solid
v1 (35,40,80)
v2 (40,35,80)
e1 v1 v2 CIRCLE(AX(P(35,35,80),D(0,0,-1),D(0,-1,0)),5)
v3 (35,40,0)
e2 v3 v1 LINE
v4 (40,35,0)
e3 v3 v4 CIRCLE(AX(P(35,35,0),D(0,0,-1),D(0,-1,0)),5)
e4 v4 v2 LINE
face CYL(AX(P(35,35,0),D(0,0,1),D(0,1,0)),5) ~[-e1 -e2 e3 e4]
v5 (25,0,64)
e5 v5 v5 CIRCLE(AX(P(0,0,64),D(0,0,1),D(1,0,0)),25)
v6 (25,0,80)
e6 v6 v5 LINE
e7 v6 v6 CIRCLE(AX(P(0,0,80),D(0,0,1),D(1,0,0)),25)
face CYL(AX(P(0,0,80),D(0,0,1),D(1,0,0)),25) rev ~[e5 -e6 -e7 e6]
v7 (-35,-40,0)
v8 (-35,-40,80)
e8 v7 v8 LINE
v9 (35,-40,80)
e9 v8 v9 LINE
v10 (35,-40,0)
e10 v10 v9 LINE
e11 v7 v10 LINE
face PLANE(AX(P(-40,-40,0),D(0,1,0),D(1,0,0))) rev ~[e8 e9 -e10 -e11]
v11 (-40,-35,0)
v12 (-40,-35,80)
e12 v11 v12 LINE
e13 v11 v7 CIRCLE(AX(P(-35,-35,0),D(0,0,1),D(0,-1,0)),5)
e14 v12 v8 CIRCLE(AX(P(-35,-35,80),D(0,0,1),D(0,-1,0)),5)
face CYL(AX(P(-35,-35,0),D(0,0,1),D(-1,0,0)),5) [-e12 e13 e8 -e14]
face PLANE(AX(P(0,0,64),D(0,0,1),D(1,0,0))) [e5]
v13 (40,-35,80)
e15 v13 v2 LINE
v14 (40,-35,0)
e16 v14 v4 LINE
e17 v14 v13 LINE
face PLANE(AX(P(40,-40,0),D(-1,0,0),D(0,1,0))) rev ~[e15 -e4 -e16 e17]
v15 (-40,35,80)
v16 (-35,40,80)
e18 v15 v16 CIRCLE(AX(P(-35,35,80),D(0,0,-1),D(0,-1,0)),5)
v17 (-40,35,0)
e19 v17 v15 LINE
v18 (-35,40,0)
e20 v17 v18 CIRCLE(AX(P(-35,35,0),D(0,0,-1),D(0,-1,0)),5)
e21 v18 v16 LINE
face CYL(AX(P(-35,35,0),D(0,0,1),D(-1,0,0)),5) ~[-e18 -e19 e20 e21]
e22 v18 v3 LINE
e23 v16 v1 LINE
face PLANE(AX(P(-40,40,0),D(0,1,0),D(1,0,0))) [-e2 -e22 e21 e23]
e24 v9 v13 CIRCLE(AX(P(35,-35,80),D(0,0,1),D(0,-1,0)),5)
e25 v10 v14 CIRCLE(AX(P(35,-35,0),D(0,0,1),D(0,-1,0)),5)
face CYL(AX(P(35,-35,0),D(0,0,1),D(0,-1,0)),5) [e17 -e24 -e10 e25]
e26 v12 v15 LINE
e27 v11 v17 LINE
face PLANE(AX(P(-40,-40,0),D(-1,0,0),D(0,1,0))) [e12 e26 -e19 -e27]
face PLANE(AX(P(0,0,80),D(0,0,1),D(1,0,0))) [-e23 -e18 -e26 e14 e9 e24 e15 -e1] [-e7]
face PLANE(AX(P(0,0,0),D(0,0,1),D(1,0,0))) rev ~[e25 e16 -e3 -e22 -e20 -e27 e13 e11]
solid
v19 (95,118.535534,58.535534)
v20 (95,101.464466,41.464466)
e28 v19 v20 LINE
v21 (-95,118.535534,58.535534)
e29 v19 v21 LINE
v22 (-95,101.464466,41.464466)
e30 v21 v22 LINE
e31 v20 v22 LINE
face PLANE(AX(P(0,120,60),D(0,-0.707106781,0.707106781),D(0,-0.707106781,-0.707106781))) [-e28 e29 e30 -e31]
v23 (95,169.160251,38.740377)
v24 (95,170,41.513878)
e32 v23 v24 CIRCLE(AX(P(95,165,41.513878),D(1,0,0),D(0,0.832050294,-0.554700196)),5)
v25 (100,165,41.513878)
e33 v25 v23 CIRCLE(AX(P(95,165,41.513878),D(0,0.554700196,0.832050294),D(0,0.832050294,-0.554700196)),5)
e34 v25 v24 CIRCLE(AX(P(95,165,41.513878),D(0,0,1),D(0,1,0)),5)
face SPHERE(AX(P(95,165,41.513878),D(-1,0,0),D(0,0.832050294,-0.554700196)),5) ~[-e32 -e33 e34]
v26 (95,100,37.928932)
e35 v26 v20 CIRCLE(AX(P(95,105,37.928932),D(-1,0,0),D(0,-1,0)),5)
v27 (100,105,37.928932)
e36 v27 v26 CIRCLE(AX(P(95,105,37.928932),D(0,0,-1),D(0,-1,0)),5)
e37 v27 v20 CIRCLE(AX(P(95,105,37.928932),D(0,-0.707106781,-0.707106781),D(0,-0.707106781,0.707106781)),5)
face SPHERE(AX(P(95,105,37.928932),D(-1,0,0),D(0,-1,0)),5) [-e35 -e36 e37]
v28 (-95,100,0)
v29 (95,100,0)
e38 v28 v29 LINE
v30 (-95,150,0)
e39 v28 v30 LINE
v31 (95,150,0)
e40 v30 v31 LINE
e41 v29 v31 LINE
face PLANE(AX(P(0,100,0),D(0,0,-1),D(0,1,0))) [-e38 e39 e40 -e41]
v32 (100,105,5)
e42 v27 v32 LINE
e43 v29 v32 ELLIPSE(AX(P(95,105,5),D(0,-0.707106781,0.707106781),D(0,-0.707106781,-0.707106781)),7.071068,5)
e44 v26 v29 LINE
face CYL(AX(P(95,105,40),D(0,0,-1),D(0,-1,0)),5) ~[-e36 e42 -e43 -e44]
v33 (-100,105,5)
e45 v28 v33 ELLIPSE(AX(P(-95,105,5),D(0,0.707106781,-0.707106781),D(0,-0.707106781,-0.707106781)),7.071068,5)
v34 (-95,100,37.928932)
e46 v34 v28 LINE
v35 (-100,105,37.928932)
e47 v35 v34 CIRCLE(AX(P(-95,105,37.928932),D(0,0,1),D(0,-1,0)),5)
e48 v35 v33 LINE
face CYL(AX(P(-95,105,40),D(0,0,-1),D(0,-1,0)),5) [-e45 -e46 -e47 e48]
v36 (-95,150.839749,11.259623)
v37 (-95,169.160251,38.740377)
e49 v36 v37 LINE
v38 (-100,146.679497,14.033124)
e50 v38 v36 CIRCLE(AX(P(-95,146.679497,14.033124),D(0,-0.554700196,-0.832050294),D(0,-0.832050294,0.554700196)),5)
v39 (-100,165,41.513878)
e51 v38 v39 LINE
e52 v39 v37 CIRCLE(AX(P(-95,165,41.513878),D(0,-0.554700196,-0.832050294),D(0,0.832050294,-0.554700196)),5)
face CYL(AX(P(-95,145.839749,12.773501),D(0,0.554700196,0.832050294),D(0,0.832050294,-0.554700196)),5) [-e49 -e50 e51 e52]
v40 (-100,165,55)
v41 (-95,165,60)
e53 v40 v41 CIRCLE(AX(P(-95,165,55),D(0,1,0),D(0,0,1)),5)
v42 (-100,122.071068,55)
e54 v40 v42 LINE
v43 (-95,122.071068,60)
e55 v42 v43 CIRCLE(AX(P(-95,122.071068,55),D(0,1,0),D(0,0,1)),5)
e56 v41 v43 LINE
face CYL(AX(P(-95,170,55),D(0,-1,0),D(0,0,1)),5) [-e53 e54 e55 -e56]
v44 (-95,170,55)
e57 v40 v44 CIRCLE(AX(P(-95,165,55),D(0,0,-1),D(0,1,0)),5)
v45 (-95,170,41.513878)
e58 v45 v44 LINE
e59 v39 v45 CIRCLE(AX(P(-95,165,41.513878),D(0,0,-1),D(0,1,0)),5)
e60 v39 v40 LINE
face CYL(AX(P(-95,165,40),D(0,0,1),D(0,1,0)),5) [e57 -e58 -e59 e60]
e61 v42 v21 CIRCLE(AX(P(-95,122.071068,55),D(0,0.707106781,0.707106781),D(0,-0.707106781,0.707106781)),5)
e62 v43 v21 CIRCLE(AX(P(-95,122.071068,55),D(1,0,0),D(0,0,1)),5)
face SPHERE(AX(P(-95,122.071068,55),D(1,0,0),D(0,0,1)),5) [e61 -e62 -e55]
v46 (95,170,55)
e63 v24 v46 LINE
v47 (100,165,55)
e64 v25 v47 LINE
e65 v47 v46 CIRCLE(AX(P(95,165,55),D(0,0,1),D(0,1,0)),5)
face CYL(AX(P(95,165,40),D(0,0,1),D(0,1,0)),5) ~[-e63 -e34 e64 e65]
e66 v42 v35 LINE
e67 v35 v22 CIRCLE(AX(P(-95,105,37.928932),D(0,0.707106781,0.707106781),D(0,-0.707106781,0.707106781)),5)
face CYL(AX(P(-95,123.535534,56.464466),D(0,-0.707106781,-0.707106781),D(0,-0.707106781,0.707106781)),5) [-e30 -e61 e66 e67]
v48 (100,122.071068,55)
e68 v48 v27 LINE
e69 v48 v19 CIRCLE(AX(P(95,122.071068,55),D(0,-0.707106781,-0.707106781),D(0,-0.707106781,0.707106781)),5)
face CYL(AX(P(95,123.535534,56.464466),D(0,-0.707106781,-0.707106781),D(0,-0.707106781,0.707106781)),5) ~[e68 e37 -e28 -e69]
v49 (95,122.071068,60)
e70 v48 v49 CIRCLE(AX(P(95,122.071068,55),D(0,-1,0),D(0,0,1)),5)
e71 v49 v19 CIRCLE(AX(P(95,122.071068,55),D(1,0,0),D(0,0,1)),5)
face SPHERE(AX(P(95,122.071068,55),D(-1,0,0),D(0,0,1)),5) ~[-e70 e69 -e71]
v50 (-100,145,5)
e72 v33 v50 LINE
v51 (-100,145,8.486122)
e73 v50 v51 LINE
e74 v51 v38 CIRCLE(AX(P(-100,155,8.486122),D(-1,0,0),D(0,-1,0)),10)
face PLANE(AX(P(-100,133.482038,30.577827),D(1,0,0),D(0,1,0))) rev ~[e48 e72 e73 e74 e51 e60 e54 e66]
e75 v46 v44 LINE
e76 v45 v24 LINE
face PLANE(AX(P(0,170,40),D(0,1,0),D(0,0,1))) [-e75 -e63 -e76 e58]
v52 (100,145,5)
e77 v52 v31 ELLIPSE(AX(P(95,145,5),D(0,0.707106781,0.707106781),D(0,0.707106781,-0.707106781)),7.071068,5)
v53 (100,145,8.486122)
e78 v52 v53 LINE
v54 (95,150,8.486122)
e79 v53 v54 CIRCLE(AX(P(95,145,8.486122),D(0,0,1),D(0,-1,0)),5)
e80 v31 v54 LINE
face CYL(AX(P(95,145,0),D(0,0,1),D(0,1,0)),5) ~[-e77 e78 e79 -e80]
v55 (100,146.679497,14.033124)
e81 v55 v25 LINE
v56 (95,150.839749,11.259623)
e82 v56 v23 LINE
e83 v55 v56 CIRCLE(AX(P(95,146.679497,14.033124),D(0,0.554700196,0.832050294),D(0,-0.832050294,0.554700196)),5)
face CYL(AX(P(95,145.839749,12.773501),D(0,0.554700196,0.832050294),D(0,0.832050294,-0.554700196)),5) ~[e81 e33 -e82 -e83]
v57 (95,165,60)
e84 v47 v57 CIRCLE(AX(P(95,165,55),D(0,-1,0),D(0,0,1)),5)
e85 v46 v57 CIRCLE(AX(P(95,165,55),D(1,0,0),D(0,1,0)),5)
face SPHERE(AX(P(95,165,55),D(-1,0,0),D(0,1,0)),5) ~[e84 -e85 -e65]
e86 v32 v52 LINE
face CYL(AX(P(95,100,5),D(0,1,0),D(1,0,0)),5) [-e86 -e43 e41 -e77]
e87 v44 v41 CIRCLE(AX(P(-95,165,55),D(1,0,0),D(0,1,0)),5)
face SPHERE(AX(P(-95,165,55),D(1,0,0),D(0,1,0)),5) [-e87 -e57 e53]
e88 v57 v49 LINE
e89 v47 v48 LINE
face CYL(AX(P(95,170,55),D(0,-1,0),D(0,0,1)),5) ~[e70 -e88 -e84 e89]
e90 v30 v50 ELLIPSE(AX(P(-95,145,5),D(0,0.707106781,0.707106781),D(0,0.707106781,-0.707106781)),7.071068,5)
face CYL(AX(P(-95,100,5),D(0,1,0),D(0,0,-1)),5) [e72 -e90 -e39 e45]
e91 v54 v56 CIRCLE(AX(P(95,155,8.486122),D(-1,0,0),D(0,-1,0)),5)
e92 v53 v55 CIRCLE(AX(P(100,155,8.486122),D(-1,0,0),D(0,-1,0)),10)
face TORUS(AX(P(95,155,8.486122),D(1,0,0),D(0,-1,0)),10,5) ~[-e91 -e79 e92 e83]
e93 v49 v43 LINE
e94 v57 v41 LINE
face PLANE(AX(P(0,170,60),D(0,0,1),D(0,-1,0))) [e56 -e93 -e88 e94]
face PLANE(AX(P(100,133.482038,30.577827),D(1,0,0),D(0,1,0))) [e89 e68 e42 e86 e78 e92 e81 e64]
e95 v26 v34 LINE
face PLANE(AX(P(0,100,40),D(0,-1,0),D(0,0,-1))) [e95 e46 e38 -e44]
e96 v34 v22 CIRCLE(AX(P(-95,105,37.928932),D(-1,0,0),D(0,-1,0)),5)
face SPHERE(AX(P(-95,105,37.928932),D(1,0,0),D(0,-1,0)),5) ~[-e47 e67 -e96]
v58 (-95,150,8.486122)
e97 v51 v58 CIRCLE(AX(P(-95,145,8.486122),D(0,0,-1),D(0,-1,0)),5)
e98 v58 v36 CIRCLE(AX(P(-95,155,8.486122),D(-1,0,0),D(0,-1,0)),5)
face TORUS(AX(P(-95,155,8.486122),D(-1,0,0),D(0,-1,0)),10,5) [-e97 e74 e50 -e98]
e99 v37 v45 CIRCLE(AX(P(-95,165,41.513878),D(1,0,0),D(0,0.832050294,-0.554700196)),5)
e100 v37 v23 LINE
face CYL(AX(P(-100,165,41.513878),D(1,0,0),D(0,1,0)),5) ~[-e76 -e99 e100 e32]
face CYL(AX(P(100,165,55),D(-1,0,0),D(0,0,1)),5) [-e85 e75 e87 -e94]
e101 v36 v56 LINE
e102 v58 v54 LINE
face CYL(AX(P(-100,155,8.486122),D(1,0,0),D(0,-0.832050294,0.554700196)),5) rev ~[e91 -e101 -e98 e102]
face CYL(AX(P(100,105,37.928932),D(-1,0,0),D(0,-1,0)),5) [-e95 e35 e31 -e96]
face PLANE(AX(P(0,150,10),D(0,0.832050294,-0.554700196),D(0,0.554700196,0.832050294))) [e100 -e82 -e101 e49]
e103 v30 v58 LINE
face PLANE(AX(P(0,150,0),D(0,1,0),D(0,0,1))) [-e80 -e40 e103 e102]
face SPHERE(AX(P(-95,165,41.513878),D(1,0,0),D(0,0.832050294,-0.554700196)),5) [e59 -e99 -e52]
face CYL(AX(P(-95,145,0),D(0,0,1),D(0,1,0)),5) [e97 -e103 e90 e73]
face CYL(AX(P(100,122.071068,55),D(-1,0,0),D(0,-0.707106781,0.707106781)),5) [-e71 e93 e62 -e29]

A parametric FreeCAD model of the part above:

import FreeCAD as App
import Part
import Sketcher
Q = App.Units.Quantity


def edges_at(feature, points):
    """Names of the edges that pass closest to the given points."""
    edges = feature.Shape.Edges
    near = lambda p: min(range(len(edges)), key=lambda i: edges[i].distToShape(Part.Vertex(*p))[0])
    return sorted({f"Edge{near(p) + 1}" for p in points})


def add_polygon(sketch, points):
    """Adds a closed chain of lines whose ends are joined by coincident constraints."""
    first, n = sketch.GeometryCount, len(points)
    for a, b in zip(points, points[1:] + points[:1]):
        sketch.addGeometry(Part.LineSegment(App.Vector(*a, 0), App.Vector(*b, 0)), False)
    for i in range(n):
        sketch.addConstraint(Sketcher.Constraint("Coincident", first + i, 2, first + (i + 1) % n, 1))

doc = App.newDocument("Part")
body = doc.addObject("PartDesign::Body", "Body")

sketch1 = doc.addObject("Sketcher::SketchObject", "Sketch")
body.addObject(sketch1)
sketch1.AttachmentSupport = (doc.XY_Plane, [""])
sketch1.MapMode = "FlatFace"
add_polygon(sketch1, [(-40, 40), (-40, -40), (40, -40), (40, 40)])
sketch1.addConstraint(Sketcher.Constraint("Vertical", 0))
sketch1.addConstraint(Sketcher.Constraint("Horizontal", 1))
sketch1.addConstraint(Sketcher.Constraint("Vertical", 2))
sketch1.addConstraint(Sketcher.Constraint("Horizontal", 3))
sketch1.addConstraint(Sketcher.Constraint("Symmetric", 0, 2, 2, 2, -1, 1))
sketch1.addConstraint(Sketcher.Constraint("Equal", 3, 0))
sketch1.addConstraint(Sketcher.Constraint("DistanceX", 1, 1, 1, 2, 80.0))
pad1 = doc.addObject("PartDesign::Pad", "Pad")
body.addObject(pad1)
pad1.Profile = sketch1
pad1.Length = 80

sketch2 = doc.addObject("Sketcher::SketchObject", "Sketch001")
body.addObject(sketch2)
sketch2.AttachmentSupport = (doc.XY_Plane, [""])
sketch2.MapMode = "FlatFace"
sketch2.AttachmentOffset = App.Placement(App.Vector(0, 0, 80), App.Rotation())
sketch2.addGeometry(Part.Circle(App.Vector(0, 0, 0), App.Vector(0, 0, 1), 25), False)
sketch2.addConstraint(Sketcher.Constraint("Coincident", 0, 3, -1, 1))
sketch2.addConstraint(Sketcher.Constraint("Diameter", 0, 50.0))
pocket1 = doc.addObject("PartDesign::Pocket", "Pocket")
body.addObject(pocket1)
pocket1.Profile = sketch2
pocket1.Length = 16
doc.recompute()

fillet = doc.addObject("PartDesign::Fillet", "Fillet")
body.addObject(fillet)
fillet.Base = (pocket1, edges_at(pocket1, [
    (-40, -40, 40),
    (-40, 40, 40),
    (40, 40, 40),
    (40, -40, 40),
]))
fillet.Radius = 5
body2 = doc.addObject("PartDesign::Body", "Body001")

sketch3 = doc.addObject("Sketcher::SketchObject", "Sketch002")
body2.addObject(sketch3)
sketch3.AttachmentSupport = (doc.getObject("YZ_Plane001"), [""])
sketch3.MapMode = "FlatFace"
add_polygon(sketch3, [(100, 40), (100, 0), (150, 0), (150, 10), (170, 40), (170, 60), (120, 60)])
sketch3.addConstraint(Sketcher.Constraint("Vertical", 0))
sketch3.addConstraint(Sketcher.Constraint("Horizontal", 1))
sketch3.addConstraint(Sketcher.Constraint("Vertical", 2))
sketch3.addConstraint(Sketcher.Constraint("Vertical", 4))
sketch3.addConstraint(Sketcher.Constraint("Horizontal", 5))
sketch3.addConstraint(Sketcher.Constraint("PointOnObject", 0, 2, -1))
sketch3.addConstraint(Sketcher.Constraint("Horizontal", 3, 2, 6, 2))
sketch3.addConstraint(Sketcher.Constraint("Equal", 1, 5))
sketch3.addConstraint(Sketcher.Constraint("DistanceX", 1, 1, 1, 2, 50.0))
sketch3.addConstraint(Sketcher.Constraint("DistanceY", 0, 2, 0, 1, 40.0))
sketch3.addConstraint(Sketcher.Constraint("DistanceY", 2, 1, 2, 2, 10.0))
sketch3.addConstraint(Sketcher.Constraint("DistanceY", 4, 1, 4, 2, 20.0))
sketch3.addConstraint(Sketcher.Constraint("Angle", 6, Q("-135 deg")))
sketch3.addConstraint(Sketcher.Constraint("DistanceX", -1, 1, 0, 2, 100.0))
pad2 = doc.addObject("PartDesign::Pad", "Pad001")
body2.addObject(pad2)
pad2.Profile = sketch3
pad2.Type = "TwoLengths"
pad2.Length = 100
pad2.Length2 = 100
doc.recompute()

fillet2 = doc.addObject("PartDesign::Fillet", "Fillet001")
body2.addObject(fillet2)
fillet2.Base = (pad2, edges_at(pad2, [
    (0, 100, 40),
    (0, 120, 60),
    (0, 170, 60),
    (0, 170, 40),
    (0, 150, 10),
    (100, 100, 20),
    (100, 125, 0),
    (100, 150, 5),
    (100, 160, 25),
    (100, 170, 50),
    (100, 145, 60),
    (100, 110, 50),
    (-100, 100, 20),
    (-100, 125, 0),
    (-100, 150, 5),
    (-100, 160, 25),
    (-100, 170, 50),
    (-100, 145, 60),
    (-100, 110, 50),
]))
fillet2.Radius = 5

doc.recompute()
